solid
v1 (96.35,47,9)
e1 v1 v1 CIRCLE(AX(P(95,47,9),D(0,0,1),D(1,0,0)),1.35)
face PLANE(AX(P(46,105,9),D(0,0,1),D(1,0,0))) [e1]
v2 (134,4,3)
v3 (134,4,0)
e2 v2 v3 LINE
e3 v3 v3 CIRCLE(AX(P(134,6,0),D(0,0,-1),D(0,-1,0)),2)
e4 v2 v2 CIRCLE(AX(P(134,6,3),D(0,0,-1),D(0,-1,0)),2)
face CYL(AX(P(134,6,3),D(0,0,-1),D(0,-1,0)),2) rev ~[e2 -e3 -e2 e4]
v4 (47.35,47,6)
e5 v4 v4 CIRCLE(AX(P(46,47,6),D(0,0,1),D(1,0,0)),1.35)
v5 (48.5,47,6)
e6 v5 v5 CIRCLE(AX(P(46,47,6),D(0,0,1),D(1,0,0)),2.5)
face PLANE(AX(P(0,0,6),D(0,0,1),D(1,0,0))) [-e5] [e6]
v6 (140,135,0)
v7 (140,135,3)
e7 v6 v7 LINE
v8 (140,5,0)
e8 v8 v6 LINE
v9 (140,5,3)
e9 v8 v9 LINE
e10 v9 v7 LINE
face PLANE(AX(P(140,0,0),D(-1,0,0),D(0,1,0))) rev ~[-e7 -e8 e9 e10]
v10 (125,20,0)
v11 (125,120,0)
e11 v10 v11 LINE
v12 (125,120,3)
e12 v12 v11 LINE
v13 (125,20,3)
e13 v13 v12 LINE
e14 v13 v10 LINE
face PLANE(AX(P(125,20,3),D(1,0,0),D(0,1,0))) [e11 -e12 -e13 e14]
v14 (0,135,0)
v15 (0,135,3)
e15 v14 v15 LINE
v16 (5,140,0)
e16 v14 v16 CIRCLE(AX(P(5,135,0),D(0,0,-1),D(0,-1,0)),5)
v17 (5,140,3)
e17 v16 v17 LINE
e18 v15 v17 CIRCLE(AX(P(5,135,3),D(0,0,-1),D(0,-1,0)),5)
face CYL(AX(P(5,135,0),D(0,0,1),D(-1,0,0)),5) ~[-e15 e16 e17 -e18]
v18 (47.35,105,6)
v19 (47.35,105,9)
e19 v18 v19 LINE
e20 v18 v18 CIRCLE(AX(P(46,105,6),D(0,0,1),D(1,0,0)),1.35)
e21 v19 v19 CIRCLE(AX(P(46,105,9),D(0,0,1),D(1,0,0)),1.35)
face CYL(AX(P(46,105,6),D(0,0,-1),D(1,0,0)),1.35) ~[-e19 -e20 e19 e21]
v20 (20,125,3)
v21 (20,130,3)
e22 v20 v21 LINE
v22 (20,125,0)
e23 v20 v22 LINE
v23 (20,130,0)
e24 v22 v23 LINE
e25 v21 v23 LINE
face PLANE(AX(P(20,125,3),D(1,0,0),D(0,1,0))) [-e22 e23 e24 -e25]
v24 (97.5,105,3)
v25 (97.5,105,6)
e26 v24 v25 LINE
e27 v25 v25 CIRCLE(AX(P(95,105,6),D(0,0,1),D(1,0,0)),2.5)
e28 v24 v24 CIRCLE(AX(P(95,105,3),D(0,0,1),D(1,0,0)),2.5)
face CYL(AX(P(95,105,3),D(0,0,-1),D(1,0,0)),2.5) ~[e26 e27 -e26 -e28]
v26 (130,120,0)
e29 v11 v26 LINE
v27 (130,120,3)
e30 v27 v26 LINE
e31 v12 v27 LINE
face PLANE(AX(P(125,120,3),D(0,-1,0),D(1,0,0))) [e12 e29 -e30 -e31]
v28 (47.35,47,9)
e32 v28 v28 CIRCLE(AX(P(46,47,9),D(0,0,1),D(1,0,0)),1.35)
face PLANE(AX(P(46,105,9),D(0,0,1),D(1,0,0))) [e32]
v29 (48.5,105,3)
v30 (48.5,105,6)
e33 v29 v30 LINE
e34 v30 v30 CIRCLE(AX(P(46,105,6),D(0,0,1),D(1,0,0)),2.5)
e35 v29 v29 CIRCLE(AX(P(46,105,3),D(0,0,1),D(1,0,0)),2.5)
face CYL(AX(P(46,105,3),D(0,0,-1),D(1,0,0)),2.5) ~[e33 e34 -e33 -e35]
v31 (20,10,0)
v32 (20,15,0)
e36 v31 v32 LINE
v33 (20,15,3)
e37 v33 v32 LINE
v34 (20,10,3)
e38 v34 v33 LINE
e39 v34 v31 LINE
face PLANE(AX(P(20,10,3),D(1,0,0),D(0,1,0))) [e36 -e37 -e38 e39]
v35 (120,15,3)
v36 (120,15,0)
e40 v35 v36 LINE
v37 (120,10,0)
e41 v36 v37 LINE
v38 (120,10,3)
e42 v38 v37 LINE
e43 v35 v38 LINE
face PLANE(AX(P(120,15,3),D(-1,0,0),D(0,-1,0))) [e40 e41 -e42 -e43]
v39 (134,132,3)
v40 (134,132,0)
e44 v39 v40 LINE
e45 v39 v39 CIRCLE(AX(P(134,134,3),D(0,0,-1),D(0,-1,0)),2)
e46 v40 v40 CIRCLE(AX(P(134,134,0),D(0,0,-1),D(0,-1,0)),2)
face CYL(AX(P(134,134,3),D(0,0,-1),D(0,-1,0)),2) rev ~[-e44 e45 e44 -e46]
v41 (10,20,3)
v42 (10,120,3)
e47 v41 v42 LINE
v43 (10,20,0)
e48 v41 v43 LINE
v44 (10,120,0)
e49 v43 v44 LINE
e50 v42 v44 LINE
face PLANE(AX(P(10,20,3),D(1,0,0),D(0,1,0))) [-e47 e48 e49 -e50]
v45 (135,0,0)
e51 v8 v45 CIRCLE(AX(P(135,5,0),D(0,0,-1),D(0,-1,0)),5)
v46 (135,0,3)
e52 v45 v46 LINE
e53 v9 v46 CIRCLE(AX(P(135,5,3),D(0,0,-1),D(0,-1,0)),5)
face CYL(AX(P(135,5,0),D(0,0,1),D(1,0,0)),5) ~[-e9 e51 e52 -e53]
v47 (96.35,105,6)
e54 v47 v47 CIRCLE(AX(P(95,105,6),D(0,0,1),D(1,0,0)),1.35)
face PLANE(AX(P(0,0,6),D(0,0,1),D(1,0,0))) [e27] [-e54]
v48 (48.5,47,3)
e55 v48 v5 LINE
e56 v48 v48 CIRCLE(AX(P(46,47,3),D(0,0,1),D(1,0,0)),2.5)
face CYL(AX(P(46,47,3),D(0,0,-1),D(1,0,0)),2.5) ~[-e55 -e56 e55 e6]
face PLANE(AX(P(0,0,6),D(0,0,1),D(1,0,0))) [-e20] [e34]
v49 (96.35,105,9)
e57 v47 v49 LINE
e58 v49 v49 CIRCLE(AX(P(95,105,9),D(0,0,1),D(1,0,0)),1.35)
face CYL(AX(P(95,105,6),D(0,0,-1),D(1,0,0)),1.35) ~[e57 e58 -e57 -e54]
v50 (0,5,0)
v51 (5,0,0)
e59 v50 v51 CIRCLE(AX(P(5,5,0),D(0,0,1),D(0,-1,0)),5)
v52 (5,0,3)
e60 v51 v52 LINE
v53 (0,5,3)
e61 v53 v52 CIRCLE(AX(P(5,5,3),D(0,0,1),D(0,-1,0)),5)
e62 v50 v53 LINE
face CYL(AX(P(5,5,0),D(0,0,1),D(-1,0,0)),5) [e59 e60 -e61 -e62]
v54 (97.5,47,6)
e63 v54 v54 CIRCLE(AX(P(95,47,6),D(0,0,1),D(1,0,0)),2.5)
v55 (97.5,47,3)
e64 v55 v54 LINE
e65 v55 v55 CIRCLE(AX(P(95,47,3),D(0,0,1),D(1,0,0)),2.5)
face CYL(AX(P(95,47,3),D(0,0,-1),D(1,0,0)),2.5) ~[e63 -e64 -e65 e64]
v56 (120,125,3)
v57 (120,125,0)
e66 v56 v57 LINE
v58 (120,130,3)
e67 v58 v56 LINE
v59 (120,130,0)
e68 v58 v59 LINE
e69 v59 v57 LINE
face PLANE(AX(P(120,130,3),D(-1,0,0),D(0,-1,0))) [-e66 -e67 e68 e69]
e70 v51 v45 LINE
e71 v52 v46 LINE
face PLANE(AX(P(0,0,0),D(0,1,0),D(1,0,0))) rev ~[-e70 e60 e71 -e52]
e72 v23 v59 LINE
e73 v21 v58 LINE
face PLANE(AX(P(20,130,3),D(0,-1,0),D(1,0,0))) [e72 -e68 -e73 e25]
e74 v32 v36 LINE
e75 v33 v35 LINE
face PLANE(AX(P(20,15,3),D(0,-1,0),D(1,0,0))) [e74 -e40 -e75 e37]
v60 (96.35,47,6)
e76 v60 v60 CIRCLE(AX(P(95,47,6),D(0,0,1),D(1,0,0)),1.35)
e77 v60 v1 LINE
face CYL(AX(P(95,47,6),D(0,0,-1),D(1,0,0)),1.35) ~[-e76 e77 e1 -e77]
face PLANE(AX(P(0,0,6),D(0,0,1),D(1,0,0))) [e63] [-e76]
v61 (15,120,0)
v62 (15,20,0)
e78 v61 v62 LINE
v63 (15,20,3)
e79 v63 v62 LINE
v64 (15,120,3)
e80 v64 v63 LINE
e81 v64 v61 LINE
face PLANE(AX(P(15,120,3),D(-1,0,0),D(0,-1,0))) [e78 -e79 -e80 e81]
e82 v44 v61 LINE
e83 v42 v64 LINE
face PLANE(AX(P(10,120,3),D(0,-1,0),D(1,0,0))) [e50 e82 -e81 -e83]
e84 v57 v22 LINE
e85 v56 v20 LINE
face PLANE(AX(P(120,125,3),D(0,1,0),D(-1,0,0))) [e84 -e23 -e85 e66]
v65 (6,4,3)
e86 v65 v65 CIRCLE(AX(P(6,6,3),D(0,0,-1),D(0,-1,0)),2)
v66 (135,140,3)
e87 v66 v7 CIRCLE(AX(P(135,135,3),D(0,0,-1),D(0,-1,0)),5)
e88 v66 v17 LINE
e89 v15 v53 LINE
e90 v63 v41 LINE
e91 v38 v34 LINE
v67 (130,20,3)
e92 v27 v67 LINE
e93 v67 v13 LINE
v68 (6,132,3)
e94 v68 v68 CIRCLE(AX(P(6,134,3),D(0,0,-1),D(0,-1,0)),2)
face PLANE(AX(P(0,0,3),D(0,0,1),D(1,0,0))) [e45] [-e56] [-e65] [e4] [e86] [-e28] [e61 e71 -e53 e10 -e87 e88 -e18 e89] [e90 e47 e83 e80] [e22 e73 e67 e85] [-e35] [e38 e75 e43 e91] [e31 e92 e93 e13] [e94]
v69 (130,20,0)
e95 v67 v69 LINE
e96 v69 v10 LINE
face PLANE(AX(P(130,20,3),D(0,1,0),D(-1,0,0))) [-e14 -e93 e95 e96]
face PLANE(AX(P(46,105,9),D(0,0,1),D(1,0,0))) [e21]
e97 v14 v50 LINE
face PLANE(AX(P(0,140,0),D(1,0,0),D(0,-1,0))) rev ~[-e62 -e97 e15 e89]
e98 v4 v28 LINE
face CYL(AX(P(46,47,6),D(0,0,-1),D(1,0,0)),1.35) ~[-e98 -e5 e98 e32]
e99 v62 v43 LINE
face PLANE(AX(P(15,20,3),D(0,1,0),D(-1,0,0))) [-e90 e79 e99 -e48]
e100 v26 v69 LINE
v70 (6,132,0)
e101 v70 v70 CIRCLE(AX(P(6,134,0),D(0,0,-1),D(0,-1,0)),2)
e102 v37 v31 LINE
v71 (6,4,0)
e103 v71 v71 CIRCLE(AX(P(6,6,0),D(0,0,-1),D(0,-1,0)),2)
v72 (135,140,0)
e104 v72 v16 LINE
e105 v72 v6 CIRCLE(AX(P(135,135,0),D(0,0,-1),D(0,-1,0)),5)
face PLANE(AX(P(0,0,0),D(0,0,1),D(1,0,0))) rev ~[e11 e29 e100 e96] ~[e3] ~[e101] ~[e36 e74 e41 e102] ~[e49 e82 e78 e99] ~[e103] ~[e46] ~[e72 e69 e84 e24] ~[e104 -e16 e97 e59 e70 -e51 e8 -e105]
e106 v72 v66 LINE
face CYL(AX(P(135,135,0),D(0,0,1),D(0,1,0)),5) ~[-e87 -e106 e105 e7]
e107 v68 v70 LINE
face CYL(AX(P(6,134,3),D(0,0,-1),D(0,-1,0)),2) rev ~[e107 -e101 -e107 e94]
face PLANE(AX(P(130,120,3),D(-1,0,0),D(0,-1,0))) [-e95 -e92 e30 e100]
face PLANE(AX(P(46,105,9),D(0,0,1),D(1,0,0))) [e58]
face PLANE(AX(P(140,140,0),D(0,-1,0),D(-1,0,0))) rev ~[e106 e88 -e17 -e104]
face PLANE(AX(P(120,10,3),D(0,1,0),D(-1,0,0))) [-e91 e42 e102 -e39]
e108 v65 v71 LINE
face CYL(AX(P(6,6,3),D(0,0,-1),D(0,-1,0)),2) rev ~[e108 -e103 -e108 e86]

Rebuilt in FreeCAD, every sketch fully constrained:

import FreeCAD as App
import Part
import Sketcher
Q = App.Units.Quantity


def edges_at(feature, points):
    """Names of the edges that pass closest to the given points."""
    edges = feature.Shape.Edges
    near = lambda p: min(range(len(edges)), key=lambda i: edges[i].distToShape(Part.Vertex(*p))[0])
    return sorted({f"Edge{near(p) + 1}" for p in points})

doc = App.newDocument("Part")
body = doc.addObject("PartDesign::Body", "Body")

sketch1 = body.newObject("Sketcher::SketchObject", "Sketch")
sketch1.AttachmentSupport = (doc.getObject("XY_Plane"), [""])
sketch1.MapMode = "FlatFace"
sketch1.addGeometry(Part.LineSegment(App.Vector(0, 140, 0), App.Vector(0, 0, 0)), False)
sketch1.addGeometry(Part.LineSegment(App.Vector(0, 0, 0), App.Vector(140, 0, 0)), False)
sketch1.addGeometry(Part.LineSegment(App.Vector(140, 0, 0), App.Vector(140, 140, 0)), False)
sketch1.addGeometry(Part.LineSegment(App.Vector(140, 140, 0), App.Vector(0, 140, 0)), False)
sketch1.addConstraint(Sketcher.Constraint("Coincident", 0, 2, 1, 1))
sketch1.addConstraint(Sketcher.Constraint("Coincident", 1, 2, 2, 1))
sketch1.addConstraint(Sketcher.Constraint("Coincident", 2, 2, 3, 1))
sketch1.addConstraint(Sketcher.Constraint("Coincident", 3, 2, 0, 1))
sketch1.addConstraint(Sketcher.Constraint("Vertical", 0))
sketch1.addConstraint(Sketcher.Constraint("Horizontal", 1))
sketch1.addConstraint(Sketcher.Constraint("Vertical", 2))
sketch1.addConstraint(Sketcher.Constraint("Horizontal", 3))
sketch1.addConstraint(Sketcher.Constraint("Coincident", 0, 2, -1, 1))
sketch1.addConstraint(Sketcher.Constraint("Equal", 3, 0))
sketch1.addConstraint(Sketcher.Constraint("DistanceX", 1, 1, 1, 2, Q("140 mm")))
pad1 = body.newObject("PartDesign::Pad", "Pad")
pad1.Profile = sketch1
pad1.Length = 3
doc.recompute()

fillet = body.newObject("PartDesign::Fillet", "Fillet")
fillet.Base = (pad1, edges_at(pad1, [
    (140, 140, 1.5),
    (140, 0, 1.5),
    (0, 140, 1.5),
    (0, 0, 1.5),
]))
fillet.Radius = 5

sketch2 = body.newObject("Sketcher::SketchObject", "Sketch001")
sketch2.AttachmentSupport = (doc.getObject("XY_Plane"), [""])
sketch2.MapMode = "FlatFace"
sketch2.AttachmentOffset = App.Placement(App.Vector(0, 0, 3), App.Rotation())
sketch2.addGeometry(Part.Circle(App.Vector(134, 134, 0), App.Vector(0, 0, 1), 2), False)
sketch2.addGeometry(Part.Circle(App.Vector(6, 6, 0), App.Vector(0, 0, 1), 2), False)
sketch2.addGeometry(Part.Circle(App.Vector(134, 6, 0), App.Vector(0, 0, 1), 2), False)
sketch2.addGeometry(Part.Circle(App.Vector(6, 134, 0), App.Vector(0, 0, 1), 2), False)
sketch2.addConstraint(Sketcher.Constraint("Equal", 0, 1))
sketch2.addConstraint(Sketcher.Constraint("Equal", 1, 2))
sketch2.addConstraint(Sketcher.Constraint("Equal", 2, 3))
sketch2.addConstraint(Sketcher.Constraint("Horizontal", 1, 3, 2, 3))
sketch2.addConstraint(Sketcher.Constraint("Horizontal", 0, 3, 3, 3))
sketch2.addConstraint(Sketcher.Constraint("Vertical", 0, 3, 2, 3))
sketch2.addConstraint(Sketcher.Constraint("Vertical", 1, 3, 3, 3))
sketch2.addConstraint(Sketcher.Constraint("Diameter", 0, Q("4 mm")))
sketch2.addConstraint(Sketcher.Constraint("DistanceX", -1, 1, 0, 3, Q("134 mm")))
sketch2.addConstraint(Sketcher.Constraint("DistanceY", -1, 1, 0, 3, Q("134 mm")))
sketch2.addConstraint(Sketcher.Constraint("DistanceX", -1, 1, 1, 3, Q("6 mm")))
sketch2.addConstraint(Sketcher.Constraint("DistanceY", -1, 1, 1, 3, Q("6 mm")))
doc.recompute()
hole = body.newObject("PartDesign::Hole", "Hole")
hole.Profile = sketch2
hole.ThreadType = "None"
hole.Diameter = 4
hole.DepthType = "Dimension"
hole.Depth = 15
hole.DrillPoint = "Flat"

sketch3 = body.newObject("Sketcher::SketchObject", "Sketch002")
sketch3.AttachmentSupport = (doc.getObject("XY_Plane"), [""])
sketch3.MapMode = "FlatFace"
sketch3.AttachmentOffset = App.Placement(App.Vector(0, 0, 3), App.Rotation())
sketch3.addGeometry(Part.LineSegment(App.Vector(120, 130, 0), App.Vector(20, 130, 0)), False)
sketch3.addGeometry(Part.LineSegment(App.Vector(20, 130, 0), App.Vector(20, 125, 0)), False)
sketch3.addGeometry(Part.LineSegment(App.Vector(20, 125, 0), App.Vector(120, 125, 0)), False)
sketch3.addGeometry(Part.LineSegment(App.Vector(120, 125, 0), App.Vector(120, 130, 0)), False)
sketch3.addGeometry(Part.LineSegment(App.Vector(120, 15, 0), App.Vector(20, 15, 0)), False)
sketch3.addGeometry(Part.LineSegment(App.Vector(20, 15, 0), App.Vector(20, 10, 0)), False)
sketch3.addGeometry(Part.LineSegment(App.Vector(20, 10, 0), App.Vector(120, 10, 0)), False)
sketch3.addGeometry(Part.LineSegment(App.Vector(120, 10, 0), App.Vector(120, 15, 0)), False)
sketch3.addGeometry(Part.LineSegment(App.Vector(15, 120, 0), App.Vector(10, 120, 0)), False)
sketch3.addGeometry(Part.LineSegment(App.Vector(10, 120, 0), App.Vector(10, 20, 0)), False)
sketch3.addGeometry(Part.LineSegment(App.Vector(10, 20, 0), App.Vector(15, 20, 0)), False)
sketch3.addGeometry(Part.LineSegment(App.Vector(15, 20, 0), App.Vector(15, 120, 0)), False)
sketch3.addGeometry(Part.LineSegment(App.Vector(130, 120, 0), App.Vector(125, 120, 0)), False)
sketch3.addGeometry(Part.LineSegment(App.Vector(125, 120, 0), App.Vector(125, 20, 0)), False)
sketch3.addGeometry(Part.LineSegment(App.Vector(125, 20, 0), App.Vector(130, 20, 0)), False)
sketch3.addGeometry(Part.LineSegment(App.Vector(130, 20, 0), App.Vector(130, 120, 0)), False)
sketch3.addConstraint(Sketcher.Constraint("Coincident", 0, 2, 1, 1))
sketch3.addConstraint(Sketcher.Constraint("Coincident", 1, 2, 2, 1))
sketch3.addConstraint(Sketcher.Constraint("Coincident", 2, 2, 3, 1))
sketch3.addConstraint(Sketcher.Constraint("Coincident", 3, 2, 0, 1))
sketch3.addConstraint(Sketcher.Constraint("Coincident", 4, 2, 5, 1))
sketch3.addConstraint(Sketcher.Constraint("Coincident", 5, 2, 6, 1))
sketch3.addConstraint(Sketcher.Constraint("Coincident", 6, 2, 7, 1))
sketch3.addConstraint(Sketcher.Constraint("Coincident", 7, 2, 4, 1))
sketch3.addConstraint(Sketcher.Constraint("Coincident", 8, 2, 9, 1))
sketch3.addConstraint(Sketcher.Constraint("Coincident", 9, 2, 10, 1))
sketch3.addConstraint(Sketcher.Constraint("Coincident", 10, 2, 11, 1))
sketch3.addConstraint(Sketcher.Constraint("Coincident", 11, 2, 8, 1))
sketch3.addConstraint(Sketcher.Constraint("Coincident", 12, 2, 13, 1))
sketch3.addConstraint(Sketcher.Constraint("Coincident", 13, 2, 14, 1))
sketch3.addConstraint(Sketcher.Constraint("Coincident", 14, 2, 15, 1))
sketch3.addConstraint(Sketcher.Constraint("Coincident", 15, 2, 12, 1))
sketch3.addConstraint(Sketcher.Constraint("Horizontal", 0))
sketch3.addConstraint(Sketcher.Constraint("Vertical", 1))
sketch3.addConstraint(Sketcher.Constraint("Horizontal", 2))
sketch3.addConstraint(Sketcher.Constraint("Vertical", 3))
sketch3.addConstraint(Sketcher.Constraint("Horizontal", 4))
sketch3.addConstraint(Sketcher.Constraint("Vertical", 5))
sketch3.addConstraint(Sketcher.Constraint("Horizontal", 6))
sketch3.addConstraint(Sketcher.Constraint("Vertical", 7))
sketch3.addConstraint(Sketcher.Constraint("Horizontal", 8))
sketch3.addConstraint(Sketcher.Constraint("Vertical", 9))
sketch3.addConstraint(Sketcher.Constraint("Horizontal", 10))
sketch3.addConstraint(Sketcher.Constraint("Vertical", 11))
sketch3.addConstraint(Sketcher.Constraint("Horizontal", 12))
sketch3.addConstraint(Sketcher.Constraint("Vertical", 13))
sketch3.addConstraint(Sketcher.Constraint("Horizontal", 14))
sketch3.addConstraint(Sketcher.Constraint("Vertical", 15))
sketch3.addConstraint(Sketcher.Constraint("Horizontal", 11, 2, 12, 2))
sketch3.addConstraint(Sketcher.Constraint("Horizontal", 10, 2, 13, 2))
sketch3.addConstraint(Sketcher.Constraint("Vertical", 1, 2, 4, 2))
sketch3.addConstraint(Sketcher.Constraint("Vertical", 3, 2, 6, 2))
sketch3.addConstraint(Sketcher.Constraint("Equal", 10, 12))
sketch3.addConstraint(Sketcher.Constraint("Equal", 14, 1))
sketch3.addConstraint(Sketcher.Constraint("Equal", 3, 5))
sketch3.addConstraint(Sketcher.Constraint("Equal", 6, 9))
sketch3.addConstraint(Sketcher.Constraint("DistanceX", 0, 2, 0, 1, Q("100 mm")))
sketch3.addConstraint(Sketcher.Constraint("DistanceX", 8, 2, 8, 1, Q("5 mm")))
sketch3.addConstraint(Sketcher.Constraint("DistanceX", -1, 1, 0, 2, Q("20 mm")))
sketch3.addConstraint(Sketcher.Constraint("DistanceY", -1, 1, 5, 2, Q("10 mm")))
sketch3.addConstraint(Sketcher.Constraint("DistanceX", -1, 1, 8, 2, Q("10 mm")))
sketch3.addConstraint(Sketcher.Constraint("DistanceY", -1, 1, 9, 2, Q("20 mm")))
sketch3.addConstraint(Sketcher.Constraint("DistanceY", 8, 2, 1, 2, Q("5 mm")))
sketch3.addConstraint(Sketcher.Constraint("DistanceX", 2, 2, 12, 2, Q("5 mm")))
pocket1 = body.newObject("PartDesign::Pocket", "Pocket")
pocket1.Profile = sketch3
pocket1.Length = 10

sketch4 = body.newObject("Sketcher::SketchObject", "Sketch003")
sketch4.AttachmentSupport = (doc.getObject("XY_Plane"), [""])
sketch4.MapMode = "FlatFace"
sketch4.AttachmentOffset = App.Placement(App.Vector(0, 0, 3), App.Rotation())
sketch4.addGeometry(Part.Circle(App.Vector(46, 105, 0), App.Vector(0, 0, 1), 2.5), False)
sketch4.addGeometry(Part.Circle(App.Vector(95, 105, 0), App.Vector(0, 0, 1), 2.5), False)
sketch4.addGeometry(Part.Circle(App.Vector(46, 47, 0), App.Vector(0, 0, 1), 2.5), False)
sketch4.addGeometry(Part.Circle(App.Vector(95, 47, 0), App.Vector(0, 0, 1), 2.5), False)
sketch4.addConstraint(Sketcher.Constraint("Equal", 0, 1))
sketch4.addConstraint(Sketcher.Constraint("Equal", 1, 2))
sketch4.addConstraint(Sketcher.Constraint("Equal", 2, 3))
sketch4.addConstraint(Sketcher.Constraint("Horizontal", 0, 3, 1, 3))
sketch4.addConstraint(Sketcher.Constraint("Horizontal", 2, 3, 3, 3))
sketch4.addConstraint(Sketcher.Constraint("Vertical", 0, 3, 2, 3))
sketch4.addConstraint(Sketcher.Constraint("Vertical", 1, 3, 3, 3))
sketch4.addConstraint(Sketcher.Constraint("Diameter", 0, Q("5 mm")))
sketch4.addConstraint(Sketcher.Constraint("DistanceX", 0, 3, 1, 3, Q("49 mm")))
sketch4.addConstraint(Sketcher.Constraint("DistanceY", 2, 3, 0, 3, Q("58 mm")))
sketch4.addConstraint(Sketcher.Constraint("DistanceX", -1, 1, 0, 3, Q("46 mm")))
sketch4.addConstraint(Sketcher.Constraint("DistanceY", -1, 1, 0, 3, Q("105 mm")))
pad2 = body.newObject("PartDesign::Pad", "Pad001")
pad2.Profile = sketch4
pad2.Length = 3

sketch5 = body.newObject("Sketcher::SketchObject", "Sketch004")
sketch5.AttachmentSupport = (doc.getObject("XY_Plane"), [""])
sketch5.MapMode = "FlatFace"
sketch5.AttachmentOffset = App.Placement(App.Vector(0, 0, 6), App.Rotation())
sketch5.addGeometry(Part.Circle(App.Vector(46, 105, 0), App.Vector(0, 0, 1), 1.4), False)
sketch5.addGeometry(Part.Circle(App.Vector(95, 105, 0), App.Vector(0, 0, 1), 1.4), False)
sketch5.addGeometry(Part.Circle(App.Vector(95, 47, 0), App.Vector(0, 0, 1), 1.4), False)
sketch5.addGeometry(Part.Circle(App.Vector(46, 47, 0), App.Vector(0, 0, 1), 1.4), False)
sketch5.addConstraint(Sketcher.Constraint("Equal", 0, 1))
sketch5.addConstraint(Sketcher.Constraint("Equal", 1, 2))
sketch5.addConstraint(Sketcher.Constraint("Equal", 2, 3))
sketch5.addConstraint(Sketcher.Constraint("Horizontal", 0, 3, 1, 3))
sketch5.addConstraint(Sketcher.Constraint("Horizontal", 2, 3, 3, 3))
sketch5.addConstraint(Sketcher.Constraint("Vertical", 1, 3, 2, 3))
sketch5.addConstraint(Sketcher.Constraint("Vertical", 0, 3, 3, 3))
sketch5.addConstraint(Sketcher.Constraint("Diameter", 0, Q("2.7 mm")))
sketch5.addConstraint(Sketcher.Constraint("DistanceX", -1, 1, 0, 3, Q("46 mm")))
sketch5.addConstraint(Sketcher.Constraint("DistanceY", -1, 1, 0, 3, Q("105 mm")))
sketch5.addConstraint(Sketcher.Constraint("DistanceX", -1, 1, 1, 3, Q("95 mm")))
sketch5.addConstraint(Sketcher.Constraint("DistanceY", -1, 1, 2, 3, Q("47 mm")))
pad3 = body.newObject("PartDesign::Pad", "Pad002")
pad3.Profile = sketch5
pad3.Length = 3

doc.recompute()
